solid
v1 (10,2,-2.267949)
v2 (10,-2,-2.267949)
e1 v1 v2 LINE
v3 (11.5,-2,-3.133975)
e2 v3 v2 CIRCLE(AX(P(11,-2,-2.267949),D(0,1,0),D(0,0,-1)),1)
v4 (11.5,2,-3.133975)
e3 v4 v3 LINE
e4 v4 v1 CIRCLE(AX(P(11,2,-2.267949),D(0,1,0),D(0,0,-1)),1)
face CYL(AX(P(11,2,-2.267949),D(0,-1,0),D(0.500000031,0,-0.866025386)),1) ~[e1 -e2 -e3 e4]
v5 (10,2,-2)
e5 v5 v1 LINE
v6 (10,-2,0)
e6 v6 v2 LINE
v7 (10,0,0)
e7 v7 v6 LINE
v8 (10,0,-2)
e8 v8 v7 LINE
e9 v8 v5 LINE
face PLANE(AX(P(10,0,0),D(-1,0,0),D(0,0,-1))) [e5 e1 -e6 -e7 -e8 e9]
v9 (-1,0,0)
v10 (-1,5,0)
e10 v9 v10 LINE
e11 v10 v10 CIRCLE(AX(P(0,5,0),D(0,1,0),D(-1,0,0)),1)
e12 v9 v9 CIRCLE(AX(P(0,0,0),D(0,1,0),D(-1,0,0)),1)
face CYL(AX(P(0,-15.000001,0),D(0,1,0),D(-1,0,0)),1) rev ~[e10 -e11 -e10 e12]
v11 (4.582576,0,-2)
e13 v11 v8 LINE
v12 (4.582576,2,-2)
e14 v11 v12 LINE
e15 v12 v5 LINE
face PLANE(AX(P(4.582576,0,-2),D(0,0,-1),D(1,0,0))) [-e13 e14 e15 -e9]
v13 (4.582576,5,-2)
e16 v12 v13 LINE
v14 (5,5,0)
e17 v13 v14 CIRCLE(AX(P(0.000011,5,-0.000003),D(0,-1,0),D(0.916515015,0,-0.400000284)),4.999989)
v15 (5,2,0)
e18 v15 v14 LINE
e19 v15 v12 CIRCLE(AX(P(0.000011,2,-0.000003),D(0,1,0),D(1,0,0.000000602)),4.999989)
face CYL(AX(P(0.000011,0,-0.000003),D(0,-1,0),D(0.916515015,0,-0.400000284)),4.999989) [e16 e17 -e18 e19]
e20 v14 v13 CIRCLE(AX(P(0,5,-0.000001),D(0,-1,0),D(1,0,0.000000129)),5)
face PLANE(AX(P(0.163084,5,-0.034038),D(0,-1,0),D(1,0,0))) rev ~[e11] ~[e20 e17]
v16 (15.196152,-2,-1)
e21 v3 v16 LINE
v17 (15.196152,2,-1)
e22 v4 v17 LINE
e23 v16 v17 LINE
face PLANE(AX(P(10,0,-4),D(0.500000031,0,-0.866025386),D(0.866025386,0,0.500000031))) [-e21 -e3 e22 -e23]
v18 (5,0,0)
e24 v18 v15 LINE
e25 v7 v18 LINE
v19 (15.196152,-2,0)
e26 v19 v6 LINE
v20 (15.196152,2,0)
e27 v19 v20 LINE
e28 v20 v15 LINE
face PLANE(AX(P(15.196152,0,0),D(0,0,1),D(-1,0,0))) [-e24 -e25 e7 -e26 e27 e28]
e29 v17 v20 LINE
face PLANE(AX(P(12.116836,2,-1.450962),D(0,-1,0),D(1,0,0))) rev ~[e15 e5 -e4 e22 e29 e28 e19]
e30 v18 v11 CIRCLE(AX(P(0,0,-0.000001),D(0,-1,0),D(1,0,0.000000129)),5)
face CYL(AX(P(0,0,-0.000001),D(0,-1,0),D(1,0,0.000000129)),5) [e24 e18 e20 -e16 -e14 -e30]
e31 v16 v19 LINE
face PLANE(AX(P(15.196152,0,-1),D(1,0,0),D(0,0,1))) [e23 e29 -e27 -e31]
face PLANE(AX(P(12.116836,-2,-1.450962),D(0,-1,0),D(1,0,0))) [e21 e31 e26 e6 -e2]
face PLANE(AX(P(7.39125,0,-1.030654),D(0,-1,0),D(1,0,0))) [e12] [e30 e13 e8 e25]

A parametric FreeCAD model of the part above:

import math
import FreeCAD as App
import Part
import Sketcher

V = App.Vector
Q = App.Units.Quantity


def edges_at(feature, points):
    """Names of the edges that pass closest to the given points."""
    edges = feature.Shape.Edges
    near = lambda p: min(range(len(edges)), key=lambda i: edges[i].distToShape(Part.Vertex(*p))[0])
    return sorted({f"Edge{near(p) + 1}" for p in points})

doc = App.newDocument("Part")
body = doc.addObject("PartDesign::Body", "Body")

sketch1 = doc.addObject("Sketcher::SketchObject", "Sketch")
body.addObject(sketch1)
sketch1.AttachmentSupport = (doc.XZ_Plane, [""])
sketch1.MapMode = "FlatFace"
sketch1.addGeometry([
    Part.ArcOfCircle(Part.Circle(V(0, 0, 0), V(0, 0, 1), 5), math.radians(-24), math.radians(0)),
    Part.ArcOfCircle(Part.Circle(V(0, 0, 0), V(0, 0, 1), 5), math.radians(0), math.radians(336)),
], False)
sketch1.addConstraint([
    Sketcher.Constraint("Tangent", 0, 1, 1, 2),
    Sketcher.Constraint("Coincident", 1, 1, 0, 2),
    Sketcher.Constraint("Coincident", 1, 3, -1, 1),
    Sketcher.Constraint("PointOnObject", 1, 1, -1),
    Sketcher.Constraint("Radius", 1, Q("5 mm")),
    Sketcher.Constraint("DistanceY", 0, 1, -1, 1, Q("2 mm")),
])
pad1 = doc.addObject("PartDesign::Pad", "Pad")
body.addObject(pad1)
pad1.Profile = sketch1
pad1.Length = 5
pad1.Reversed = True

sketch2 = doc.addObject("Sketcher::SketchObject", "Sketch001")
body.addObject(sketch2)
sketch2.AttachmentSupport = (doc.XZ_Plane, [""])
sketch2.MapMode = "FlatFace"
sketch2.addGeometry(Part.Circle(V(0, 0, 0), V(0, 0, 1), 1), False)
sketch2.addConstraint([
    Sketcher.Constraint("Coincident", 0, 3, -1, 1),
    Sketcher.Constraint("Diameter", 0, Q("2 mm")),
])
doc.recompute()
hole = doc.addObject("PartDesign::Hole", "Hole")
body.addObject(hole)
hole.Profile = sketch2
hole.ThreadType = "None"
hole.Diameter = 2
hole.DepthType = "ThroughAll"

sketch3 = doc.addObject("Sketcher::SketchObject", "Sketch002")
body.addObject(sketch3)
sketch3.AttachmentSupport = (doc.XZ_Plane, [""])
sketch3.MapMode = "FlatFace"
sketch3.addGeometry([
    Part.LineSegment(V(10, 0, 0), V(5, 0, 0)),
    Part.ArcOfCircle(Part.Circle(V(0, 0, 0), V(0, 0, 1), 5), math.radians(-24), math.radians(0)),
    Part.LineSegment(V(4.6, -2, 0), V(10, -2, 0)),
    Part.LineSegment(V(10, -2, 0), V(10, 0, 0)),
], False)
sketch3.addConstraint([
    Sketcher.Constraint("Coincident", 0, 2, 1, 2),
    Sketcher.Constraint("Coincident", 1, 1, 2, 1),
    Sketcher.Constraint("Coincident", 2, 2, 3, 1),
    Sketcher.Constraint("Coincident", 3, 2, 0, 1),
    Sketcher.Constraint("Horizontal", 0),
    Sketcher.Constraint("Horizontal", 2),
    Sketcher.Constraint("Vertical", 3),
    Sketcher.Constraint("PointOnObject", 0, 2, -1),
    Sketcher.Constraint("DistanceX", 0, 2, 0, 1, Q("5 mm")),
    Sketcher.Constraint("DistanceY", 3, 1, 3, 2, Q("2 mm")),
    Sketcher.Constraint("DistanceX", -1, 1, 0, 2, Q("5 mm")),
    Sketcher.Constraint("Radius", 1, Q("4.999989 mm")),
    Sketcher.Constraint("DistanceX", 2, 1, 2, 2, Q("5.417424 mm")),
])
pad2 = doc.addObject("PartDesign::Pad", "Pad001")
body.addObject(pad2)
pad2.Profile = sketch3
pad2.Length = 2
pad2.Reversed = True

sketch4 = doc.addObject("Sketcher::SketchObject", "Sketch003")
body.addObject(sketch4)
sketch4.AttachmentSupport = (doc.XZ_Plane, [""])
sketch4.MapMode = "FlatFace"
sketch4.addGeometry([
    Part.LineSegment(V(15.2, 0, 0), V(10, 0, 0)),
    Part.LineSegment(V(10, 0, 0), V(10, -4, 0)),
    Part.LineSegment(V(10, -4, 0), V(15.2, -1, 0)),
    Part.LineSegment(V(15.2, -1, 0), V(15.2, 0, 0)),
], False)
sketch4.addConstraint([
    Sketcher.Constraint("Coincident", 0, 2, 1, 1),
    Sketcher.Constraint("Coincident", 1, 2, 2, 1),
    Sketcher.Constraint("Coincident", 2, 2, 3, 1),
    Sketcher.Constraint("Coincident", 3, 2, 0, 1),
    Sketcher.Constraint("Horizontal", 0),
    Sketcher.Constraint("Vertical", 1),
    Sketcher.Constraint("Vertical", 3),
    Sketcher.Constraint("PointOnObject", 0, 2, -1),
    Sketcher.Constraint("DistanceY", 1, 2, 1, 1, Q("4 mm")),
    Sketcher.Constraint("DistanceY", 3, 1, 3, 2, Q("1 mm")),
    Sketcher.Constraint("Angle", 2, Q("30.000002 deg")),
    Sketcher.Constraint("DistanceX", -1, 1, 0, 2, Q("10 mm")),
])
pad3 = doc.addObject("PartDesign::Pad", "Pad002")
body.addObject(pad3)
pad3.Profile = sketch4
pad3.Length = 4
pad3.Midplane = True
doc.recompute()

fillet = doc.addObject("PartDesign::Fillet", "Fillet")
body.addObject(fillet)
fillet.Base = (pad3, edges_at(pad3, [(10, 0, -4)]))
fillet.Radius = 1

doc.recompute()
